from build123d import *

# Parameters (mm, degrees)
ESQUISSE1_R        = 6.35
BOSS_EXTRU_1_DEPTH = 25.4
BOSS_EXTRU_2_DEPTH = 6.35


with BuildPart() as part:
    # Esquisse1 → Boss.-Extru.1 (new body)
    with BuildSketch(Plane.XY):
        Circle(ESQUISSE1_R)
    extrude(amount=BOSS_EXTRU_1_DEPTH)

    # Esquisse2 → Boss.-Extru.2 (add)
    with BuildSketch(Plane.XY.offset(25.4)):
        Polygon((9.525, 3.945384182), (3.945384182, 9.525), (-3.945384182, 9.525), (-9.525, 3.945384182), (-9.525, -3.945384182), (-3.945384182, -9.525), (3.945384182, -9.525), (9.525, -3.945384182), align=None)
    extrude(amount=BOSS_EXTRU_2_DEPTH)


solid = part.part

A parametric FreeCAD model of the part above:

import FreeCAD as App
import Part
import Sketcher
Q = App.Units.Quantity


def add_polygon(sketch, points):
    """Adds a closed chain of lines whose ends are joined by coincident constraints."""
    first, n = sketch.GeometryCount, len(points)
    for a, b in zip(points, points[1:] + points[:1]):
        sketch.addGeometry(Part.LineSegment(App.Vector(*a, 0), App.Vector(*b, 0)), False)
    for i in range(n):
        sketch.addConstraint(Sketcher.Constraint("Coincident", first + i, 2, first + (i + 1) % n, 1))

doc = App.newDocument("Part")
params = doc.addObject("Spreadsheet::Sheet", "Params")
for row, (alias, value) in enumerate([
    ("sketch1_diameter", "0.5 in"),
    ("pad1_length", "1 in"),
    ("pad2_length", "0.25 in"),
], start=1):
    params.set(f"A{row}", alias)
    params.set(f"B{row}", "=" + value)
    params.setAlias(f"B{row}", alias)

body = doc.addObject("PartDesign::Body", "Body")

sketch1 = body.newObject("Sketcher::SketchObject", "Sketch")
sketch1.AttachmentSupport = (doc.getObject("XY_Plane"), [""])
sketch1.MapMode = "FlatFace"
sketch1.addGeometry(Part.Circle(App.Vector(0, 0, 0), App.Vector(0, 0, 1), 6.35), False)
sketch1.addConstraint(Sketcher.Constraint("Coincident", 0, 3, -1, 1))
sketch1.addConstraint(Sketcher.Constraint("Diameter", 0, Q("0.5 in")))
sketch1.setExpression("Constraints[1]", "Params.sketch1_diameter")
pad1 = body.newObject("PartDesign::Pad", "Pad")
pad1.Profile = sketch1
pad1.setExpression("Length", "Params.pad1_length")

sketch2 = body.newObject("Sketcher::SketchObject", "Sketch001")
sketch2.AttachmentSupport = (doc.getObject("XY_Plane"), [""])
sketch2.MapMode = "FlatFace"
sketch2.AttachmentOffset = App.Placement(App.Vector(0, 0, 1 * 25.4), App.Rotation())
add_polygon(sketch2, [(9.525, 3.945384), (3.945384, 9.525), (-3.945384, 9.525), (-9.525, 3.945384), (-9.525, -3.945384), (-3.945384, -9.525), (3.945384, -9.525), (9.525, -3.945384)])
sketch2.addConstraint(Sketcher.Constraint("Horizontal", 1))
sketch2.addConstraint(Sketcher.Constraint("Vertical", 3))
sketch2.addConstraint(Sketcher.Constraint("Horizontal", 5))
sketch2.addConstraint(Sketcher.Constraint("Vertical", 7))
sketch2.addConstraint(Sketcher.Constraint("Symmetric", 0, 2, 4, 2, -1, 1))
sketch2.addConstraint(Sketcher.Constraint("Symmetric", 2, 2, 6, 2, -1, 1))
sketch2.addConstraint(Sketcher.Constraint("Perpendicular", 0, 2))
sketch2.addConstraint(Sketcher.Constraint("Perpendicular", 2, 4))
sketch2.addConstraint(Sketcher.Constraint("Perpendicular", 4, 6))
sketch2.addConstraint(Sketcher.Constraint("Horizontal", 3, 2, 6, 2))
sketch2.addConstraint(Sketcher.Constraint("Vertical", 1, 2, 4, 2))
sketch2.addConstraint(Sketcher.Constraint("Equal", 5, 3))
sketch2.addConstraint(Sketcher.Constraint("DistanceY", 4, 2, 1, 2, Q("0.75 in")))
sketch2.addConstraint(Sketcher.Constraint("DistanceX", 1, 2, 1, 1, 7.890768))
pad2 = body.newObject("PartDesign::Pad", "Pad001")
pad2.Profile = sketch2
pad2.setExpression("Length", "Params.pad2_length")

doc.recompute()
